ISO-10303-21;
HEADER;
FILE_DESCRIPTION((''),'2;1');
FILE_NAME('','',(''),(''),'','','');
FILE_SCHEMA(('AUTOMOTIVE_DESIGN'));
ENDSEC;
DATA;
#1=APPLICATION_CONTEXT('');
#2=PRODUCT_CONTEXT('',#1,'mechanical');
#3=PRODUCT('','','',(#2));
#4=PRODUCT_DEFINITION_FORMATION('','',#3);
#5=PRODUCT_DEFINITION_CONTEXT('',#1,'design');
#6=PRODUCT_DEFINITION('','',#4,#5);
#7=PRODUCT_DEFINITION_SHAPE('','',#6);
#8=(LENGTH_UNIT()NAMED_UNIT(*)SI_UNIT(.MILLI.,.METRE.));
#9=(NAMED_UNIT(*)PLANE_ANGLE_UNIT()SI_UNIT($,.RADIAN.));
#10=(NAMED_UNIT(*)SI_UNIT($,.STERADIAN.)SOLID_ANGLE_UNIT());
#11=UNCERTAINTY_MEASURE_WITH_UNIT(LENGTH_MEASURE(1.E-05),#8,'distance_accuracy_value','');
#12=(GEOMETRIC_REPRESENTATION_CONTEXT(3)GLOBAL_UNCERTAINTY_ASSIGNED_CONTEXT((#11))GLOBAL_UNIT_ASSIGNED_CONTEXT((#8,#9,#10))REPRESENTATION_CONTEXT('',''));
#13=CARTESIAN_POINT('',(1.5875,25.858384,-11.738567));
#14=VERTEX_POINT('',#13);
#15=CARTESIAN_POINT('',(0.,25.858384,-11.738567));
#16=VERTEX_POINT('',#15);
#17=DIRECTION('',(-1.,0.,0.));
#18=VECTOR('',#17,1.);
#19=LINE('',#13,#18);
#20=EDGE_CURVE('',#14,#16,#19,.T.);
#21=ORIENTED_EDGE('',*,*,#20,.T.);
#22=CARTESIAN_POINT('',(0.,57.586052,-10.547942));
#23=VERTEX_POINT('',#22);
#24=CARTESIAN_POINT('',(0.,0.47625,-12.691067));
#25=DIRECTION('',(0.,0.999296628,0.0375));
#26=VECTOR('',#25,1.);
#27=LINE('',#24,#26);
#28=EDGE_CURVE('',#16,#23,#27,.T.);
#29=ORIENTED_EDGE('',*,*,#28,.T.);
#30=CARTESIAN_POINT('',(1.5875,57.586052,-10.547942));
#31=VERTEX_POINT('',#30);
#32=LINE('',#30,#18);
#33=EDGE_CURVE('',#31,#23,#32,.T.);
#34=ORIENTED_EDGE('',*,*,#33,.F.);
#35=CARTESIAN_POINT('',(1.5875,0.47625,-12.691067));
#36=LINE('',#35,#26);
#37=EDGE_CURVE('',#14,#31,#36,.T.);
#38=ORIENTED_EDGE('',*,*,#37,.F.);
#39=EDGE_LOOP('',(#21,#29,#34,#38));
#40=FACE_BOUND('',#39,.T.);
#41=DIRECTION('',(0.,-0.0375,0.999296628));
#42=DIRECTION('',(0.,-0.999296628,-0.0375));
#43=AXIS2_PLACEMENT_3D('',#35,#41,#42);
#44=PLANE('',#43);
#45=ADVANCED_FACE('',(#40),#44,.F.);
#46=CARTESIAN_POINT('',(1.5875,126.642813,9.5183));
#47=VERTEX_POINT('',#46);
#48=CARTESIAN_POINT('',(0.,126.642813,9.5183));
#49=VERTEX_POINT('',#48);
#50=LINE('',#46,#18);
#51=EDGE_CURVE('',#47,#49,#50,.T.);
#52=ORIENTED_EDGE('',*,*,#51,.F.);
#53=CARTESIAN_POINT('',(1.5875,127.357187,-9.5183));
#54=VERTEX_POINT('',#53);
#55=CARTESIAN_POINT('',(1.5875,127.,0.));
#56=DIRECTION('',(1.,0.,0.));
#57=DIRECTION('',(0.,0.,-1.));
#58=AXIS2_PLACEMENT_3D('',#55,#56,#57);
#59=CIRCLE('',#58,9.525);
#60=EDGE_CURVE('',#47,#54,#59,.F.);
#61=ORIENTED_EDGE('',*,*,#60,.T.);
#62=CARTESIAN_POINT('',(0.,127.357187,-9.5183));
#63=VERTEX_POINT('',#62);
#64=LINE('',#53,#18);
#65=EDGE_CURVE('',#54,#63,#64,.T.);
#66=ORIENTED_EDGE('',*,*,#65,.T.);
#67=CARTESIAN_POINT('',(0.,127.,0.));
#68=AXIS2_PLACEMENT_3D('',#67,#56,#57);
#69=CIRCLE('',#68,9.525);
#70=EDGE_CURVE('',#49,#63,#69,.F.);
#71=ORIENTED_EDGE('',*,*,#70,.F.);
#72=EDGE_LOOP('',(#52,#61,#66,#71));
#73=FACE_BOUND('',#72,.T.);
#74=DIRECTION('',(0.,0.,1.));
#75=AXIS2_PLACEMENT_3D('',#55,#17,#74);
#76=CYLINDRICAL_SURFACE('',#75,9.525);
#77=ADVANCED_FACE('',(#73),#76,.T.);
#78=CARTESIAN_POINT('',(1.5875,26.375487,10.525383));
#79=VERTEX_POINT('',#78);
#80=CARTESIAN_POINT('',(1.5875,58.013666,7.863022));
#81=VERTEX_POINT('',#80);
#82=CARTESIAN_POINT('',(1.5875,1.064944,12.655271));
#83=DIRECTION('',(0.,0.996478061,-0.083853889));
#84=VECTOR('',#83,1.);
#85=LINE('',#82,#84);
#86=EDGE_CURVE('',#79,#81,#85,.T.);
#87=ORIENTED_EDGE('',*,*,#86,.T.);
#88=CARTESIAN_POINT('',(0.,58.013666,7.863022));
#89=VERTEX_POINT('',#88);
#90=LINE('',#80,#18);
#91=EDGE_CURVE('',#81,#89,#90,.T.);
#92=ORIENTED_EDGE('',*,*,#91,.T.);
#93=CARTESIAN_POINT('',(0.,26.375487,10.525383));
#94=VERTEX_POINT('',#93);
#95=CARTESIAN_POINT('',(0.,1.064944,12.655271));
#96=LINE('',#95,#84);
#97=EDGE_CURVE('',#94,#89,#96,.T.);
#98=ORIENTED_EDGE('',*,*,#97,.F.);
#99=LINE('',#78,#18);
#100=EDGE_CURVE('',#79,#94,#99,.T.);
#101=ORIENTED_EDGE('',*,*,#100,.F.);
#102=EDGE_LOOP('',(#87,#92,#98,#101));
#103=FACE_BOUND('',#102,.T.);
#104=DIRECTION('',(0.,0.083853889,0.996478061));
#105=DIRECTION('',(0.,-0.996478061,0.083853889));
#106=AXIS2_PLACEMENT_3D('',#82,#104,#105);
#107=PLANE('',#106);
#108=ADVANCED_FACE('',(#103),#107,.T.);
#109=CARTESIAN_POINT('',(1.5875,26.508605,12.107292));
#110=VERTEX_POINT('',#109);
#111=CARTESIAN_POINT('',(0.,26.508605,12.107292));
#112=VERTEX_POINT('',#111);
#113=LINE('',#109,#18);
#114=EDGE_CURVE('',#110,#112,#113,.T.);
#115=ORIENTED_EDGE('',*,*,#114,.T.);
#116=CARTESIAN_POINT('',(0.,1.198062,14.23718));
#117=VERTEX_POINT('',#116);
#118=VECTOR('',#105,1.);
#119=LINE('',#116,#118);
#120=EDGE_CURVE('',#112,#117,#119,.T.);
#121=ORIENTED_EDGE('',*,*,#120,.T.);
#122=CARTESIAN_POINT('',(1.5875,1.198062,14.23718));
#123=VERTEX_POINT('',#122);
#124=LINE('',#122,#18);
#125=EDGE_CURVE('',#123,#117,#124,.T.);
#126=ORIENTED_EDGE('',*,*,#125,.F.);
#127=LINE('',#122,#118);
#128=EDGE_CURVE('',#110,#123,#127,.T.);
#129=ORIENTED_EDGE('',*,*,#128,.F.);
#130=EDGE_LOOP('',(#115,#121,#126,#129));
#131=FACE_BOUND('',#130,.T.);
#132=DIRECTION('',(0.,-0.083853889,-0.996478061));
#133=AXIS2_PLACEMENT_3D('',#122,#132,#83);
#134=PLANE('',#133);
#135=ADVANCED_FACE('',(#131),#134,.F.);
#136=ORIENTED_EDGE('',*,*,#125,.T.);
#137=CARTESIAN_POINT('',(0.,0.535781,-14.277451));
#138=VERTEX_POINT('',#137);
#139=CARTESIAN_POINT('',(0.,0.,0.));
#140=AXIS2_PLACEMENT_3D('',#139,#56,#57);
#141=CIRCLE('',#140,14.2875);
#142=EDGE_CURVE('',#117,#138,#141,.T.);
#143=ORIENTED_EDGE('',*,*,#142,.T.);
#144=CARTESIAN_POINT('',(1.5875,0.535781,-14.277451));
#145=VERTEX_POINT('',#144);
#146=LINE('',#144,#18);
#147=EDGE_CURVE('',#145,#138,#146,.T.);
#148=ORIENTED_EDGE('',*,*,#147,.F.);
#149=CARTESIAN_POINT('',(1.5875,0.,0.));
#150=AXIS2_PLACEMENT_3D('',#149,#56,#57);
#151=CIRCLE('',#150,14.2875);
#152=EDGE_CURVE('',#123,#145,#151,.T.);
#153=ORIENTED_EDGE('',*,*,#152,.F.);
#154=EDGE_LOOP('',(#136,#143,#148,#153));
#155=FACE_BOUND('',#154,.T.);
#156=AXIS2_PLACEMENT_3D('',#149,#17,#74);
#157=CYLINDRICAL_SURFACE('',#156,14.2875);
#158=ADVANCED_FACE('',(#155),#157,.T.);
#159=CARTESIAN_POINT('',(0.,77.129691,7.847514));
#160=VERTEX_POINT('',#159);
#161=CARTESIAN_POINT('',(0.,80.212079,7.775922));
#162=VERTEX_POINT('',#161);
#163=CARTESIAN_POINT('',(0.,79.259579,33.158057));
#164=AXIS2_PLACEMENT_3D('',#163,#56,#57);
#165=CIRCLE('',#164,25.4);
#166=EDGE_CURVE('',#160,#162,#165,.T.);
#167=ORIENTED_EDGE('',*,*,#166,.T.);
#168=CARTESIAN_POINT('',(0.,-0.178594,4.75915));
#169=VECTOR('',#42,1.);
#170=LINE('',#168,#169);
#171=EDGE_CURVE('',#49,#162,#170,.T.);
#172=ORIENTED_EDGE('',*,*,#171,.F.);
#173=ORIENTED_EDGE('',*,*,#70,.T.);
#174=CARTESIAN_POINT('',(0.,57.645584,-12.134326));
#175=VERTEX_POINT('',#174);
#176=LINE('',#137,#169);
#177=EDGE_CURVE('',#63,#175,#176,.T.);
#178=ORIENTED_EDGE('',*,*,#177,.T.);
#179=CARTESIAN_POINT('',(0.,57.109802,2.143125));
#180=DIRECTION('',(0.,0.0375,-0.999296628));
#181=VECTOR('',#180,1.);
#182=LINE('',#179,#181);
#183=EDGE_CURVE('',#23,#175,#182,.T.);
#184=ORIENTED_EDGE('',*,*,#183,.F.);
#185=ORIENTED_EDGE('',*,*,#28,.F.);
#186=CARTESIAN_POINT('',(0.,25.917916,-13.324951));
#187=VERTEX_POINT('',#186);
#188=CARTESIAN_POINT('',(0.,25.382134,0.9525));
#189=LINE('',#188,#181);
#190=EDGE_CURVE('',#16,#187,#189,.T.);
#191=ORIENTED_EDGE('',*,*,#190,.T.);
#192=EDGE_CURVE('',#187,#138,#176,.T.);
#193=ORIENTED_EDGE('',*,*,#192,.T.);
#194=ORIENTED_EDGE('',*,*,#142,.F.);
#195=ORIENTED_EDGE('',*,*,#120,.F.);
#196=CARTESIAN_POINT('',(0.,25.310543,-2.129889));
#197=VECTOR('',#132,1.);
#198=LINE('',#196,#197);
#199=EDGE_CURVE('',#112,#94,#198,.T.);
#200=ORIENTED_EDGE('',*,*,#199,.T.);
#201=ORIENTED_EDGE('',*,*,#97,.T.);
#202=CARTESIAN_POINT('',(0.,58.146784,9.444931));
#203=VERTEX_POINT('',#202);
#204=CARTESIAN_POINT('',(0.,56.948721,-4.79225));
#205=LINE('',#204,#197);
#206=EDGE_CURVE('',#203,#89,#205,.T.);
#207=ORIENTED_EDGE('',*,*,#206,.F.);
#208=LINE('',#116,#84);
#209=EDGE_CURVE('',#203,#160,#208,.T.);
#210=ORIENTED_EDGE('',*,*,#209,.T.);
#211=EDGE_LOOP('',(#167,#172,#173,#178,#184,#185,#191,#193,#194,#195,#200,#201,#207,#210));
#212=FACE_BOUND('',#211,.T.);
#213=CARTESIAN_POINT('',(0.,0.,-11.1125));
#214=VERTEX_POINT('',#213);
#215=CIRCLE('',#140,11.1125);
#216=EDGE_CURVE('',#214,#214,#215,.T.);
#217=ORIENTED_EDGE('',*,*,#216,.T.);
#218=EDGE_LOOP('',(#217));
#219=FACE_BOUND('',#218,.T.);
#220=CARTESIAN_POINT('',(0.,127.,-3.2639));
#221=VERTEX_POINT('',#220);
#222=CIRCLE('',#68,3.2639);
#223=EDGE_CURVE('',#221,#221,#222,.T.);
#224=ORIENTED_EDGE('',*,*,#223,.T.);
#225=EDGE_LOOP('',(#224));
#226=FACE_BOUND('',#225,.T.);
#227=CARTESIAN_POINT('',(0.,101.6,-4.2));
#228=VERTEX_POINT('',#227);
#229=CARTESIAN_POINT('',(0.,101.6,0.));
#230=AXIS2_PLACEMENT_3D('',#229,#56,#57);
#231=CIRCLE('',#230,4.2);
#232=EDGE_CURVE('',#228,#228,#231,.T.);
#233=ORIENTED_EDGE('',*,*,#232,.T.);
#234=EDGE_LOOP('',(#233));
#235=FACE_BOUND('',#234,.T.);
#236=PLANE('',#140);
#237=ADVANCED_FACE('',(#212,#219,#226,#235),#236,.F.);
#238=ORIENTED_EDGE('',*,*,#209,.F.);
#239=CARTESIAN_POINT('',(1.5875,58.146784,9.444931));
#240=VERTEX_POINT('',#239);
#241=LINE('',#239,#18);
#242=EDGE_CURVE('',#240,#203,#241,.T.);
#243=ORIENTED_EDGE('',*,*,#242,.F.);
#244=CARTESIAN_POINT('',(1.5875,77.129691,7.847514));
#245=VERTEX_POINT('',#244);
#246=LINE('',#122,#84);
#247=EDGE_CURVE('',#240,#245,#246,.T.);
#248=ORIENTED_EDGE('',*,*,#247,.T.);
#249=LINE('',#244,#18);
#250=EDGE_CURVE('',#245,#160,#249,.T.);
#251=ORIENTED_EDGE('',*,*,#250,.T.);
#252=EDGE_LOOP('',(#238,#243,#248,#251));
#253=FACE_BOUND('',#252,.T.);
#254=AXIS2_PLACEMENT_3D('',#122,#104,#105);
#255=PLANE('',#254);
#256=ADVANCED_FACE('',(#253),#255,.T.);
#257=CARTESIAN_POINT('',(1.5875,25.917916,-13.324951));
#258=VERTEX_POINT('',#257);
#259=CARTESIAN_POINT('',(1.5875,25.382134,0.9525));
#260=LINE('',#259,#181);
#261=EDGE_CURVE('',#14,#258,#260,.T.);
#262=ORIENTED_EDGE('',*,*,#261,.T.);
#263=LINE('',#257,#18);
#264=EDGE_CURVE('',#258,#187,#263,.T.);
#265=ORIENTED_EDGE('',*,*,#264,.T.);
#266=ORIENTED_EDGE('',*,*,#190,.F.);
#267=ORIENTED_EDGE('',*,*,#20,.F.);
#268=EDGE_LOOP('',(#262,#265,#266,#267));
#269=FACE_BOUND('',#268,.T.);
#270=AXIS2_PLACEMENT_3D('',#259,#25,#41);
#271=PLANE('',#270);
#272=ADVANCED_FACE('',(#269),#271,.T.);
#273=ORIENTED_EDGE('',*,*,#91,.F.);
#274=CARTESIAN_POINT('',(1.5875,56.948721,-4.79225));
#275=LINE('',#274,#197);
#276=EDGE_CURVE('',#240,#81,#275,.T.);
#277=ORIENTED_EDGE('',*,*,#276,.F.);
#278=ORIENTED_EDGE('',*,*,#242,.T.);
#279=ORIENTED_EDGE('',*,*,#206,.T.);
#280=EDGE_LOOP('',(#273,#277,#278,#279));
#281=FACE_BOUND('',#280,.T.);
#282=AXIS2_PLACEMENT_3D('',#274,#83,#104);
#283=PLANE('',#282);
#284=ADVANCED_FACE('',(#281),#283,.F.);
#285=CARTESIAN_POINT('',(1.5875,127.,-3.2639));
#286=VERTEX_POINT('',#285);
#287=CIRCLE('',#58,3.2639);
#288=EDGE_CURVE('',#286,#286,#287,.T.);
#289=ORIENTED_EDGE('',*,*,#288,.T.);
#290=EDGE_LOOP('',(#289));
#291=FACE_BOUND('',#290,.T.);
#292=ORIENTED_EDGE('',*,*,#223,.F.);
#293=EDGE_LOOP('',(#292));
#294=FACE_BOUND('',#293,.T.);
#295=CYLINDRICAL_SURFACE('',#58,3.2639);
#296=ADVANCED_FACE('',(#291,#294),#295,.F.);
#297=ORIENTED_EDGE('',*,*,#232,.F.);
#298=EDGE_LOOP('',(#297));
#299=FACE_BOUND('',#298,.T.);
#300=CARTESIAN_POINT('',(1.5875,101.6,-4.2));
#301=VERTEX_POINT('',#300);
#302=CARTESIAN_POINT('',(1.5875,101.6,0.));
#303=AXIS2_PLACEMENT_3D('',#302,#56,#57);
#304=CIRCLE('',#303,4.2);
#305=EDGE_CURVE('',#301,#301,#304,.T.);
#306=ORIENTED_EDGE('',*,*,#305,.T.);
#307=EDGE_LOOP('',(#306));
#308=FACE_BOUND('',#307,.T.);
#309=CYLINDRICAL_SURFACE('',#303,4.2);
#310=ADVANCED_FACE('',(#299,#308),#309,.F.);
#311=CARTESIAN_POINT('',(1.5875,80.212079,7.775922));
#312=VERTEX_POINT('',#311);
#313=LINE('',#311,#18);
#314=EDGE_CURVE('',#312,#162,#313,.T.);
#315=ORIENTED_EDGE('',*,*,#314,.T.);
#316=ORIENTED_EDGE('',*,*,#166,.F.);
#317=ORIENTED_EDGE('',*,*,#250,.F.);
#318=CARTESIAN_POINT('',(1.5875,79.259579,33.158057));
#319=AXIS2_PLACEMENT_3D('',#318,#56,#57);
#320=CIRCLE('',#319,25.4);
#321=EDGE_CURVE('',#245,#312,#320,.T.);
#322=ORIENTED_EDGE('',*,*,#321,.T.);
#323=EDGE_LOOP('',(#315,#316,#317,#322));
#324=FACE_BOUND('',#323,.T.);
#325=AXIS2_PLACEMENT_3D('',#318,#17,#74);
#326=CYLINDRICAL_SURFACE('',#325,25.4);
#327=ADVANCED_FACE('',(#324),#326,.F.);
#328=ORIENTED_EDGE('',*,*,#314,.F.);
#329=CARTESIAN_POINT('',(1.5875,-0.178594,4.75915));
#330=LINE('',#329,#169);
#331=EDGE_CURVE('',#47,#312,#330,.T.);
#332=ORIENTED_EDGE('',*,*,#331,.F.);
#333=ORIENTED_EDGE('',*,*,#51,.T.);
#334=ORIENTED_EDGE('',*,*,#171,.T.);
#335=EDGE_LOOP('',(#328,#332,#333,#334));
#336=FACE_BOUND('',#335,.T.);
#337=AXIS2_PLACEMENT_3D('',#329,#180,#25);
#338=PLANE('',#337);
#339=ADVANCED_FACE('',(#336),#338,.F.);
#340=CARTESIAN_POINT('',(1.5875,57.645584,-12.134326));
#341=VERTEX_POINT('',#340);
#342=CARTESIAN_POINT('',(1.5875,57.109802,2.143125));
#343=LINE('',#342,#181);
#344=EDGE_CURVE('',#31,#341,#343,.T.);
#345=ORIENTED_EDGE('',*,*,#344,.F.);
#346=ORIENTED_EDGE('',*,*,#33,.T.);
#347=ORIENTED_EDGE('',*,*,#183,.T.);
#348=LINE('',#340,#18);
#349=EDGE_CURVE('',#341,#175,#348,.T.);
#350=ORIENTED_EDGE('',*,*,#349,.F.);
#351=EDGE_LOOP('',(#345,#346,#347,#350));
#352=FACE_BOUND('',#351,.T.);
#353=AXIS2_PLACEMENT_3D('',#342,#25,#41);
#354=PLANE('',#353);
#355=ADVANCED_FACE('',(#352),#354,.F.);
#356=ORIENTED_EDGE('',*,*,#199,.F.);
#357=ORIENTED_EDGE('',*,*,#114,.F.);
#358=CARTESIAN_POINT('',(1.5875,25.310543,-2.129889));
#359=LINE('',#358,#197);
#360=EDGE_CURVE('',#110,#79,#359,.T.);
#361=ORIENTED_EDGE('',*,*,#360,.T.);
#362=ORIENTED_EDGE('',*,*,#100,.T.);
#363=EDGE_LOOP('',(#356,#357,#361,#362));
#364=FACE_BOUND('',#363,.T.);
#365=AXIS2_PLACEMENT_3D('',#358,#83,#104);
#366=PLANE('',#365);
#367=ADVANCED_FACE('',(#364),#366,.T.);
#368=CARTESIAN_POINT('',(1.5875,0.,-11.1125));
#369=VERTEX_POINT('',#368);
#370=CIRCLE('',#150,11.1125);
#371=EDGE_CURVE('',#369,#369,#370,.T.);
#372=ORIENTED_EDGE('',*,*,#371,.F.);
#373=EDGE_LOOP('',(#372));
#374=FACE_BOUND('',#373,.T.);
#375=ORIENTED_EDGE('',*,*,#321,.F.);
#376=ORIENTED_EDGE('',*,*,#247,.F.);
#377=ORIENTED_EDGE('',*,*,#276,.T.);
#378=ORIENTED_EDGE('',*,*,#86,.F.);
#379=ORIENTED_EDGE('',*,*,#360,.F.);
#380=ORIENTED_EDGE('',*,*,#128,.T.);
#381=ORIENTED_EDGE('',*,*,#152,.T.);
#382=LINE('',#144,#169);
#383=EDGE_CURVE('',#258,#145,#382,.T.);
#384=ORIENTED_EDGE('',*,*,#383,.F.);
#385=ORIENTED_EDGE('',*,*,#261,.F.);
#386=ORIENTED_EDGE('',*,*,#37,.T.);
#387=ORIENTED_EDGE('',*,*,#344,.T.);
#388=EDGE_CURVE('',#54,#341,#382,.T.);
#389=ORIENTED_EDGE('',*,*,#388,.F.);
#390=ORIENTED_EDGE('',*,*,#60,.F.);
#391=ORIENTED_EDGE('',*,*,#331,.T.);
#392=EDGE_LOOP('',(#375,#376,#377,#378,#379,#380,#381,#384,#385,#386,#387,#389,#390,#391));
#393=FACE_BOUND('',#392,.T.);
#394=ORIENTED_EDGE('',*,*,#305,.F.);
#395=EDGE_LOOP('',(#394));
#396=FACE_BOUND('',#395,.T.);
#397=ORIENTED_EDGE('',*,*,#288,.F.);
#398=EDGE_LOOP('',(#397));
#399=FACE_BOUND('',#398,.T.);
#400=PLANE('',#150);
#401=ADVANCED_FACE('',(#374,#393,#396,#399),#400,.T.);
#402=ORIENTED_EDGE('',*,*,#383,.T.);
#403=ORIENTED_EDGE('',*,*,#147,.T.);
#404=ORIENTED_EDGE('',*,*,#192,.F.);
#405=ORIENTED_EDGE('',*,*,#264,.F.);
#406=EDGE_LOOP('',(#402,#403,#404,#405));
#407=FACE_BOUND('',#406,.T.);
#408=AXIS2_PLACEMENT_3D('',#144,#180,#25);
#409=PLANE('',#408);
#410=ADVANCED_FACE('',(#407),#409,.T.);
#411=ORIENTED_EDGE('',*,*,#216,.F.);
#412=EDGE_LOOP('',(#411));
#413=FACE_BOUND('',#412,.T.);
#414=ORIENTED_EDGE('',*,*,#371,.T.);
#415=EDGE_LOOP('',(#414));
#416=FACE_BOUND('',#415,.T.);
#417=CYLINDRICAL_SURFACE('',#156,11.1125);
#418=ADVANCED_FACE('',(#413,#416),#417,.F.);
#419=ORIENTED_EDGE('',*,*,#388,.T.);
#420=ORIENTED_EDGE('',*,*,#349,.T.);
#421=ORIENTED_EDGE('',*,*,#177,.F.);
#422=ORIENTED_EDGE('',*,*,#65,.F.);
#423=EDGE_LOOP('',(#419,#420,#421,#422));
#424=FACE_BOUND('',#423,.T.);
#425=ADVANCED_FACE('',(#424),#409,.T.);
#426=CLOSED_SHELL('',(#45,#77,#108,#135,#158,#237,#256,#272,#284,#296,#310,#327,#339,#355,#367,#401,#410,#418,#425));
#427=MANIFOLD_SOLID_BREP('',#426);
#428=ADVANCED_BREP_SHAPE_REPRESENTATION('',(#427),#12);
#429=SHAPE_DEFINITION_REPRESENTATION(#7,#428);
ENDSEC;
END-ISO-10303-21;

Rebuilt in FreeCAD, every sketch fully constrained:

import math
import FreeCAD as App
import Part
import Sketcher

V = App.Vector
Q = App.Units.Quantity

doc = App.newDocument("Part")
body = doc.addObject("PartDesign::Body", "Body")

# Sketch on YZ plane
sketch1 = body.newObject("Sketcher::SketchObject", "Sketch")
sketch1.AttachmentSupport = (doc.getObject("YZ_Plane"), [""])
sketch1.MapMode = "FlatFace"
sketch1.addGeometry([
    Part.LineSegment(V(57.6, -12.1, 0), V(127.4, -9.5, 0)),  # 0
    Part.ArcOfCircle(Part.Circle(V(127, 0, 0), V(0, 0, 1), 9.5), math.radians(-88), math.radians(92)),  # 1
    Part.LineSegment(V(126.6, 9.5, 0), V(80.2, 7.8, 0)),  # 2
    Part.ArcOfCircle(Part.Circle(V(79.3, 33.2, 0), V(0, 0, 1), 25.4), math.radians(-94.81), math.radians(-87.85)),  # 3
    Part.LineSegment(V(77.1, 7.8, 0), V(58.1, 9.4, 0)),  # 4
    Part.LineSegment(V(58.1, 9.4, 0), V(58, 7.9, 0)),  # 5
    Part.LineSegment(V(58, 7.9, 0), V(26.4, 10.5, 0)),  # 6
    Part.LineSegment(V(26.4, 10.5, 0), V(26.5, 12.1, 0)),  # 7
    Part.LineSegment(V(26.5, 12.1, 0), V(1.2, 14.2, 0)),  # 8
    Part.ArcOfCircle(Part.Circle(V(0, 0, 0), V(0, 0, 1), 14.3), math.radians(85), math.radians(272)),  # 9
    Part.LineSegment(V(0.5, -14.3, 0), V(25.9, -13.3, 0)),  # 10
    Part.LineSegment(V(25.9, -13.3, 0), V(25.9, -11.7, 0)),  # 11
    Part.LineSegment(V(25.9, -11.7, 0), V(57.6, -10.5, 0)),  # 12
    Part.LineSegment(V(57.6, -10.5, 0), V(57.6, -12.1, 0)),  # 13
    Part.Circle(V(0, 0, 0), V(0, 0, 1), 11.1),  # 14
], False)
sketch1.addConstraint([
    Sketcher.Constraint("Tangent", 0, 2, 1, 1),
    Sketcher.Constraint("Tangent", 1, 2, 2, 1),
    Sketcher.Constraint("Tangent", 2, 2, 3, 2),
    Sketcher.Constraint("Tangent", 3, 1, 4, 1),
    Sketcher.Constraint("Coincident", 4, 2, 5, 1),
    Sketcher.Constraint("Coincident", 5, 2, 6, 1),
    Sketcher.Constraint("Coincident", 6, 2, 7, 1),
    Sketcher.Constraint("Coincident", 7, 2, 8, 1),
    Sketcher.Constraint("Tangent", 8, 2, 9, 1),
    Sketcher.Constraint("Tangent", 9, 2, 10, 1),
    Sketcher.Constraint("Coincident", 10, 2, 11, 1),
    Sketcher.Constraint("Coincident", 11, 2, 12, 1),
    Sketcher.Constraint("Coincident", 12, 2, 13, 1),
    Sketcher.Constraint("Coincident", 13, 2, 0, 1),
    Sketcher.Constraint("Coincident", 9, 3, -1, 1),
    Sketcher.Constraint("Coincident", 14, 3, -1, 1),
    Sketcher.Constraint("PointOnObject", 1, 3, -1),
    Sketcher.Constraint("Parallel", 0, 2),
    Sketcher.Constraint("Perpendicular", 4, 5),
    Sketcher.Constraint("Perpendicular", 5, 6),
    Sketcher.Constraint("Perpendicular", 6, 7),
    Sketcher.Constraint("Perpendicular", 7, 8),
    Sketcher.Constraint("Parallel", 2, 10),
    Sketcher.Constraint("Perpendicular", 10, 11),
    Sketcher.Constraint("Perpendicular", 11, 12),
    Sketcher.Constraint("Perpendicular", 12, 13),
    Sketcher.Constraint("Equal", 5, 7),
    Sketcher.Constraint("Equal", 8, 10),
    Sketcher.Constraint("Equal", 7, 11),
    Sketcher.Constraint("Equal", 6, 12),
    Sketcher.Constraint("Equal", 11, 13),
    Sketcher.Constraint("Radius", 3, Q("1 in")),
    Sketcher.Constraint("Distance", 8, Q("1 in")),
    Sketcher.Constraint("Diameter", 14, Q("0.875 in")),
    Sketcher.Constraint("DistanceX", -1, 1, 1, 3, Q("5 in")),
    Sketcher.Constraint("Radius", 1, Q("0.375 in")),
    Sketcher.Constraint("Radius", 9, Q("0.5625 in")),
    Sketcher.Constraint("Distance", 4, Q("0.75 in")),
    Sketcher.Constraint("Distance", 6, Q("1.25 in")),
    Sketcher.Constraint("Distance", 5, Q("0.0625 in")),
])
pad1 = body.newObject("PartDesign::Pad", "Pad")
pad1.Profile = sketch1
pad1.Length = Q("0.0625 in")

# Sketch on YZ plane
sketch2 = body.newObject("Sketcher::SketchObject", "Sketch001")
sketch2.AttachmentSupport = (doc.getObject("YZ_Plane"), [""])
sketch2.MapMode = "FlatFace"
sketch2.AttachmentOffset = App.Placement(V(0, 0, 0.0625 * 25.4), App.Rotation())
sketch2.addGeometry(Part.Circle(V(127, 0, 0), V(0, 0, 1), 3.3), False)
sketch2.addConstraint([
    Sketcher.Constraint("PointOnObject", 0, 3, -1),
    Sketcher.Constraint("Diameter", 0, Q("0.257 in")),
    Sketcher.Constraint("DistanceX", -1, 1, 0, 3, Q("5 in")),
])
doc.recompute()
hole = body.newObject("PartDesign::Hole", "Hole")
hole.Profile = sketch2
hole.ThreadType = "None"
hole.Diameter = Q("0.257 in")
hole.DepthType = "ThroughAll"

# Sketch on YZ plane
sketch3 = body.newObject("Sketcher::SketchObject", "Sketch002")
sketch3.AttachmentSupport = (doc.getObject("YZ_Plane"), [""])
sketch3.MapMode = "FlatFace"
sketch3.AttachmentOffset = App.Placement(V(0, 0, 0.0625 * 25.4), App.Rotation())
sketch3.addGeometry(Part.Circle(V(101.6, 0, 0), V(0, 0, 1), 4.2), False)
sketch3.addConstraint([
    Sketcher.Constraint("PointOnObject", 0, 3, -1),
    Sketcher.Constraint("DistanceX", -1, 1, 0, 3, Q("4 in")),
    Sketcher.Constraint("Diameter", 0, 8.4),
])
doc.recompute()
hole2 = body.newObject("PartDesign::Hole", "Hole001")
hole2.Profile = sketch3
hole2.ThreadType = "None"
hole2.Diameter = 8.4
hole2.DepthType = "ThroughAll"

doc.recompute()
